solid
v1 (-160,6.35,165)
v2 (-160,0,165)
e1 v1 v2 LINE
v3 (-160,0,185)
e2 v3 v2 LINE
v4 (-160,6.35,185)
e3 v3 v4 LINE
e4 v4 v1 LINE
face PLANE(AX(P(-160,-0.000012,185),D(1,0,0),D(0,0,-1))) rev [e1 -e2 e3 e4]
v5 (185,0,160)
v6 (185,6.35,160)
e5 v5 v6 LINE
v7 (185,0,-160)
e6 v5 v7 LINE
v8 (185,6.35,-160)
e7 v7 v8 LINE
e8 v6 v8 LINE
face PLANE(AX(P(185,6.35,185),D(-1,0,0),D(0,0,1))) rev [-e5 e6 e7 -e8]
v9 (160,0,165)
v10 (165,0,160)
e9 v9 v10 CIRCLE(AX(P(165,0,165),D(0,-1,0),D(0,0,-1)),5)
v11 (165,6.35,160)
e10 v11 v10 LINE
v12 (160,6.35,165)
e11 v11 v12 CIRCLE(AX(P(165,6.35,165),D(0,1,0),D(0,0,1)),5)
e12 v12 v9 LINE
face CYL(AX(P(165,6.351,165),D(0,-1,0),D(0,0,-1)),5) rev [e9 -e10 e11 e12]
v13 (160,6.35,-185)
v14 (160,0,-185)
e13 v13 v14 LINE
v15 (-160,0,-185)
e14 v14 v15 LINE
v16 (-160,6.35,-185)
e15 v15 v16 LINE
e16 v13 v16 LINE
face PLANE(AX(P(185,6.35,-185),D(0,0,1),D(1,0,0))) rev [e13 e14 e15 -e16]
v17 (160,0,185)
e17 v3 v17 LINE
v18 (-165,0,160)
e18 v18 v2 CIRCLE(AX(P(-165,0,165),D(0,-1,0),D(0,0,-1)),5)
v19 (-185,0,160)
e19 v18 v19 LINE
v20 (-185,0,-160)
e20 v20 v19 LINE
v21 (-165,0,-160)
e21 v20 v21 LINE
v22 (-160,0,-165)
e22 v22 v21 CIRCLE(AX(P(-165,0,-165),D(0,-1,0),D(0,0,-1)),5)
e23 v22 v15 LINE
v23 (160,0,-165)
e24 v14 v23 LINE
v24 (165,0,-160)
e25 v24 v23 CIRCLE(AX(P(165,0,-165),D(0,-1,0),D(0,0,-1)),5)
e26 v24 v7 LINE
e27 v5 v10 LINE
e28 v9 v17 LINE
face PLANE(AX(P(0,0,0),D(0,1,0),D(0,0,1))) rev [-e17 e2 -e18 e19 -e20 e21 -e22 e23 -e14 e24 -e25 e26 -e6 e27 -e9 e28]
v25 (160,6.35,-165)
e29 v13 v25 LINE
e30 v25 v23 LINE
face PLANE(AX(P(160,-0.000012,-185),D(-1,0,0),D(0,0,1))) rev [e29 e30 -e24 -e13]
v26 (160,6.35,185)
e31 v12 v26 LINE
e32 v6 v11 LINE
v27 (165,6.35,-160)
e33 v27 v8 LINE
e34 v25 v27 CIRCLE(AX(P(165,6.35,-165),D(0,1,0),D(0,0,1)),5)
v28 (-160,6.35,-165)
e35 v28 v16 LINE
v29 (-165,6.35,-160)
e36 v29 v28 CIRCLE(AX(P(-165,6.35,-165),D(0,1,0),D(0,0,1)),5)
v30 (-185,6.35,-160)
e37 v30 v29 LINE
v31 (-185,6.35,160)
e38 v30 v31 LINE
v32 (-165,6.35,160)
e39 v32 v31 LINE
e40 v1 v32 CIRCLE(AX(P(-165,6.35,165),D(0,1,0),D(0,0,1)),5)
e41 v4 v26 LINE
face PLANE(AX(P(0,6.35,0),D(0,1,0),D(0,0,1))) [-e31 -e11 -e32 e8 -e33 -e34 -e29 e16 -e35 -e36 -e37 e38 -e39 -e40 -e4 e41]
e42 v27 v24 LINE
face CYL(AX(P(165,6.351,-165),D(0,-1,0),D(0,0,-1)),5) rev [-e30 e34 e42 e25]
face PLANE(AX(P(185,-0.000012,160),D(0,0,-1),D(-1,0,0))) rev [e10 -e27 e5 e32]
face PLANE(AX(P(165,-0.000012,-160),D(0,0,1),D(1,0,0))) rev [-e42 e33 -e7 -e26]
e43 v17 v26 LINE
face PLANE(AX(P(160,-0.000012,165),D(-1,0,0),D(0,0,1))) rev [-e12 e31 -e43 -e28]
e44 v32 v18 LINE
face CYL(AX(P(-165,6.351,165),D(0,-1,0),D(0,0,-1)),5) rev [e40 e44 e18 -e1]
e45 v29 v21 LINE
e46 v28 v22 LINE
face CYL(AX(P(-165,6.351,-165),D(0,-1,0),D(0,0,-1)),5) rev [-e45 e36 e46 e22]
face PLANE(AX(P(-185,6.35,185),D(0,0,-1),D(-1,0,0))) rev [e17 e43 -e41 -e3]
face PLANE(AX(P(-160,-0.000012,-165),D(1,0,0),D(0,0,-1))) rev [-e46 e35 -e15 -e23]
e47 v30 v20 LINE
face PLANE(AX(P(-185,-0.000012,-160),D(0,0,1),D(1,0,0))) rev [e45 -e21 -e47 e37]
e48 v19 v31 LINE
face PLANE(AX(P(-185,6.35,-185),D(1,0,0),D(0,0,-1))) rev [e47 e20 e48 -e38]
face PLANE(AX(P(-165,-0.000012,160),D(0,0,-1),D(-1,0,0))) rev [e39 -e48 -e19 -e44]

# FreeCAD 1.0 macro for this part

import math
import FreeCAD as App
import Part
import Sketcher

V = App.Vector
Q = App.Units.Quantity

doc = App.newDocument("Part")
body = doc.addObject("PartDesign::Body", "Body")

# Sketch on XZ plane
sketch1 = body.newObject("Sketcher::SketchObject", "Sketch")
sketch1.AttachmentSupport = (doc.getObject("XZ_Plane"), [""])
sketch1.MapMode = "FlatFace"
sketch1.addGeometry(Part.LineSegment(V(-185, -185, 0), V(-185, 185, 0)), False)
sketch1.addGeometry(Part.LineSegment(V(-185, 185, 0), V(185, 185, 0)), False)
sketch1.addGeometry(Part.LineSegment(V(185, 185, 0), V(185, -185, 0)), False)
sketch1.addGeometry(Part.LineSegment(V(185, -185, 0), V(-185, -185, 0)), False)
sketch1.addConstraint(Sketcher.Constraint("Coincident", 0, 2, 1, 1))
sketch1.addConstraint(Sketcher.Constraint("Coincident", 1, 2, 2, 1))
sketch1.addConstraint(Sketcher.Constraint("Coincident", 2, 2, 3, 1))
sketch1.addConstraint(Sketcher.Constraint("Coincident", 3, 2, 0, 1))
sketch1.addConstraint(Sketcher.Constraint("Vertical", 0))
sketch1.addConstraint(Sketcher.Constraint("Horizontal", 1))
sketch1.addConstraint(Sketcher.Constraint("Vertical", 2))
sketch1.addConstraint(Sketcher.Constraint("Horizontal", 3))
sketch1.addConstraint(Sketcher.Constraint("Symmetric", 0, 2, 2, 2, -1, 1))
sketch1.addConstraint(Sketcher.Constraint("Equal", 3, 0))
sketch1.addConstraint(Sketcher.Constraint("DistanceX", 1, 1, 1, 2, Q("370 mm")))
pad1 = body.newObject("PartDesign::Pad", "Pad")
pad1.Profile = sketch1
pad1.Length = 6.35
pad1.Reversed = True

# Sketch on XZ plane
sketch2 = body.newObject("Sketcher::SketchObject", "Sketch001")
sketch2.AttachmentSupport = (doc.getObject("XZ_Plane"), [""])
sketch2.MapMode = "FlatFace"
sketch2.addGeometry(Part.LineSegment(V(-185, -185, 0), V(-185, -160, 0)), False)
sketch2.addGeometry(Part.LineSegment(V(-185, -160, 0), V(-165, -160, 0)), False)
sketch2.addGeometry(Part.ArcOfCircle(Part.Circle(V(-165, -165, 0), V(0, 0, 1), 5), math.radians(0), math.radians(90)), False)
sketch2.addGeometry(Part.LineSegment(V(-160, -165, 0), V(-160, -185, 0)), False)
sketch2.addGeometry(Part.LineSegment(V(-160, -185, 0), V(-185, -185, 0)), False)
sketch2.addConstraint(Sketcher.Constraint("Coincident", 0, 2, 1, 1))
sketch2.addConstraint(Sketcher.Constraint("Tangent", 1, 2, 2, 2))
sketch2.addConstraint(Sketcher.Constraint("Tangent", 2, 1, 3, 1))
sketch2.addConstraint(Sketcher.Constraint("Coincident", 3, 2, 4, 1))
sketch2.addConstraint(Sketcher.Constraint("Coincident", 4, 2, 0, 1))
sketch2.addConstraint(Sketcher.Constraint("Vertical", 0))
sketch2.addConstraint(Sketcher.Constraint("Horizontal", 1))
sketch2.addConstraint(Sketcher.Constraint("Vertical", 3))
sketch2.addConstraint(Sketcher.Constraint("Horizontal", 4))
sketch2.addConstraint(Sketcher.Constraint("Equal", 4, 0))
sketch2.addConstraint(Sketcher.Constraint("Radius", 2, Q("5 mm")))
sketch2.addConstraint(Sketcher.Constraint("DistanceX", 1, 1, 1, 2, Q("20 mm")))
sketch2.addConstraint(Sketcher.Constraint("DistanceX", 2, 3, -1, 1, Q("165 mm")))
sketch2.addConstraint(Sketcher.Constraint("DistanceY", 2, 3, -1, 1, Q("165 mm")))
pocket1 = body.newObject("PartDesign::Pocket", "Pocket")
pocket1.Profile = sketch2
pocket1.Type = "UpToFirst"

# Sketch on XZ plane
sketch3 = body.newObject("Sketcher::SketchObject", "Sketch002")
sketch3.AttachmentSupport = (doc.getObject("XZ_Plane"), [""])
sketch3.MapMode = "FlatFace"
sketch3.addGeometry(Part.LineSegment(V(-185, 185, 0), V(-160, 185, 0)), False)
sketch3.addGeometry(Part.LineSegment(V(-160, 185, 0), V(-160, 165, 0)), False)
sketch3.addGeometry(Part.ArcOfCircle(Part.Circle(V(-165, 165, 0), V(0, 0, 1), 5), math.radians(-90), math.radians(0)), False)
sketch3.addGeometry(Part.LineSegment(V(-165, 160, 0), V(-185, 160, 0)), False)
sketch3.addGeometry(Part.LineSegment(V(-185, 160, 0), V(-185, 185, 0)), False)
sketch3.addConstraint(Sketcher.Constraint("Coincident", 0, 2, 1, 1))
sketch3.addConstraint(Sketcher.Constraint("Tangent", 1, 2, 2, 2))
sketch3.addConstraint(Sketcher.Constraint("Tangent", 2, 1, 3, 1))
sketch3.addConstraint(Sketcher.Constraint("Coincident", 3, 2, 4, 1))
sketch3.addConstraint(Sketcher.Constraint("Coincident", 4, 2, 0, 1))
sketch3.addConstraint(Sketcher.Constraint("Horizontal", 0))
sketch3.addConstraint(Sketcher.Constraint("Vertical", 1))
sketch3.addConstraint(Sketcher.Constraint("Horizontal", 3))
sketch3.addConstraint(Sketcher.Constraint("Vertical", 4))
sketch3.addConstraint(Sketcher.Constraint("Equal", 3, 1))
sketch3.addConstraint(Sketcher.Constraint("Radius", 2, Q("5 mm")))
sketch3.addConstraint(Sketcher.Constraint("DistanceX", 0, 1, 0, 2, Q("25 mm")))
sketch3.addConstraint(Sketcher.Constraint("DistanceX", 2, 3, -1, 1, Q("165 mm")))
sketch3.addConstraint(Sketcher.Constraint("DistanceY", -1, 1, 2, 3, Q("165 mm")))
pocket2 = body.newObject("PartDesign::Pocket", "Pocket001")
pocket2.Profile = sketch3
pocket2.Type = "UpToFirst"

# Sketch on XZ plane
sketch4 = body.newObject("Sketcher::SketchObject", "Sketch003")
sketch4.AttachmentSupport = (doc.getObject("XZ_Plane"), [""])
sketch4.MapMode = "FlatFace"
sketch4.addGeometry(Part.LineSegment(V(185, -185, 0), V(160, -185, 0)), False)
sketch4.addGeometry(Part.LineSegment(V(160, -185, 0), V(160, -165, 0)), False)
sketch4.addGeometry(Part.ArcOfCircle(Part.Circle(V(165, -165, 0), V(0, 0, 1), 5), math.radians(90), math.radians(180)), False)
sketch4.addGeometry(Part.LineSegment(V(165, -160, 0), V(185, -160, 0)), False)
sketch4.addGeometry(Part.LineSegment(V(185, -160, 0), V(185, -185, 0)), False)
sketch4.addConstraint(Sketcher.Constraint("Coincident", 0, 2, 1, 1))
sketch4.addConstraint(Sketcher.Constraint("Tangent", 1, 2, 2, 2))
sketch4.addConstraint(Sketcher.Constraint("Tangent", 2, 1, 3, 1))
sketch4.addConstraint(Sketcher.Constraint("Coincident", 3, 2, 4, 1))
sketch4.addConstraint(Sketcher.Constraint("Coincident", 4, 2, 0, 1))
sketch4.addConstraint(Sketcher.Constraint("Horizontal", 0))
sketch4.addConstraint(Sketcher.Constraint("Vertical", 1))
sketch4.addConstraint(Sketcher.Constraint("Horizontal", 3))
sketch4.addConstraint(Sketcher.Constraint("Vertical", 4))
sketch4.addConstraint(Sketcher.Constraint("Equal", 3, 1))
sketch4.addConstraint(Sketcher.Constraint("Radius", 2, Q("5 mm")))
sketch4.addConstraint(Sketcher.Constraint("DistanceX", 0, 2, 0, 1, Q("25 mm")))
sketch4.addConstraint(Sketcher.Constraint("DistanceX", -1, 1, 2, 3, Q("165 mm")))
sketch4.addConstraint(Sketcher.Constraint("DistanceY", 2, 3, -1, 1, Q("165 mm")))
pocket3 = body.newObject("PartDesign::Pocket", "Pocket002")
pocket3.Profile = sketch4
pocket3.Type = "UpToFirst"

# Sketch on XZ plane
sketch5 = body.newObject("Sketcher::SketchObject", "Sketch004")
sketch5.AttachmentSupport = (doc.getObject("XZ_Plane"), [""])
sketch5.MapMode = "FlatFace"
sketch5.addGeometry(Part.LineSegment(V(185, 185, 0), V(185, 160, 0)), False)
sketch5.addGeometry(Part.LineSegment(V(185, 160, 0), V(165, 160, 0)), False)
sketch5.addGeometry(Part.ArcOfCircle(Part.Circle(V(165, 165, 0), V(0, 0, 1), 5), math.radians(180), math.radians(270)), False)
sketch5.addGeometry(Part.LineSegment(V(160, 165, 0), V(160, 185, 0)), False)
sketch5.addGeometry(Part.LineSegment(V(160, 185, 0), V(185, 185, 0)), False)
sketch5.addConstraint(Sketcher.Constraint("Coincident", 0, 2, 1, 1))
sketch5.addConstraint(Sketcher.Constraint("Tangent", 1, 2, 2, 2))
sketch5.addConstraint(Sketcher.Constraint("Tangent", 2, 1, 3, 1))
sketch5.addConstraint(Sketcher.Constraint("Coincident", 3, 2, 4, 1))
sketch5.addConstraint(Sketcher.Constraint("Coincident", 4, 2, 0, 1))
sketch5.addConstraint(Sketcher.Constraint("Vertical", 0))
sketch5.addConstraint(Sketcher.Constraint("Horizontal", 1))
sketch5.addConstraint(Sketcher.Constraint("Vertical", 3))
sketch5.addConstraint(Sketcher.Constraint("Horizontal", 4))
sketch5.addConstraint(Sketcher.Constraint("Equal", 4, 0))
sketch5.addConstraint(Sketcher.Constraint("Radius", 2, Q("5 mm")))
sketch5.addConstraint(Sketcher.Constraint("DistanceX", 1, 2, 1, 1, Q("20 mm")))
sketch5.addConstraint(Sketcher.Constraint("DistanceX", -1, 1, 2, 3, Q("165 mm")))
sketch5.addConstraint(Sketcher.Constraint("DistanceY", -1, 1, 2, 3, Q("165 mm")))
pocket4 = body.newObject("PartDesign::Pocket", "Pocket003")
pocket4.Profile = sketch5
pocket4.Type = "UpToFirst"

# Sketch on XZ plane
sketch6 = body.newObject("Sketcher::SketchObject", "Sketch005")
sketch6.AttachmentSupport = (doc.getObject("XZ_Plane"), [""])
sketch6.MapMode = "FlatFace"
sketch6.addGeometry(Part.LineSegment(V(-185, -185, 0), V(-185, -160, 0)), False)
sketch6.addGeometry(Part.LineSegment(V(-185, -160, 0), V(-165, -160, 0)), False)
sketch6.addGeometry(Part.ArcOfCircle(Part.Circle(V(-165, -165, 0), V(0, 0, 1), 5), math.radians(0), math.radians(90)), False)
sketch6.addGeometry(Part.LineSegment(V(-160, -165, 0), V(-160, -185, 0)), False)
sketch6.addGeometry(Part.LineSegment(V(-160, -185, 0), V(-185, -185, 0)), False)
sketch6.addGeometry(Part.LineSegment(V(-185, 185, 0), V(-160, 185, 0)), False)
sketch6.addGeometry(Part.LineSegment(V(-160, 185, 0), V(-160, 165, 0)), False)
sketch6.addGeometry(Part.ArcOfCircle(Part.Circle(V(-165, 165, 0), V(0, 0, 1), 5), math.radians(-90), math.radians(0)), False)
sketch6.addGeometry(Part.LineSegment(V(-165, 160, 0), V(-185, 160, 0)), False)
sketch6.addGeometry(Part.LineSegment(V(-185, 160, 0), V(-185, 185, 0)), False)
sketch6.addGeometry(Part.LineSegment(V(185, -185, 0), V(160, -185, 0)), False)
sketch6.addGeometry(Part.LineSegment(V(160, -185, 0), V(160, -165, 0)), False)
sketch6.addGeometry(Part.ArcOfCircle(Part.Circle(V(165, -165, 0), V(0, 0, 1), 5), math.radians(90), math.radians(180)), False)
sketch6.addGeometry(Part.LineSegment(V(165, -160, 0), V(185, -160, 0)), False)
sketch6.addGeometry(Part.LineSegment(V(185, -160, 0), V(185, -185, 0)), False)
sketch6.addGeometry(Part.LineSegment(V(185, 185, 0), V(185, 160, 0)), False)
sketch6.addGeometry(Part.LineSegment(V(185, 160, 0), V(165, 160, 0)), False)
sketch6.addGeometry(Part.ArcOfCircle(Part.Circle(V(165, 165, 0), V(0, 0, 1), 5), math.radians(180), math.radians(270)), False)
sketch6.addGeometry(Part.LineSegment(V(160, 165, 0), V(160, 185, 0)), False)
sketch6.addGeometry(Part.LineSegment(V(160, 185, 0), V(185, 185, 0)), False)
sketch6.addConstraint(Sketcher.Constraint("Coincident", 0, 2, 1, 1))
sketch6.addConstraint(Sketcher.Constraint("Tangent", 1, 2, 2, 2))
sketch6.addConstraint(Sketcher.Constraint("Tangent", 2, 1, 3, 1))
sketch6.addConstraint(Sketcher.Constraint("Coincident", 3, 2, 4, 1))
sketch6.addConstraint(Sketcher.Constraint("Coincident", 4, 2, 0, 1))
sketch6.addConstraint(Sketcher.Constraint("Coincident", 5, 2, 6, 1))
sketch6.addConstraint(Sketcher.Constraint("Tangent", 6, 2, 7, 2))
sketch6.addConstraint(Sketcher.Constraint("Tangent", 7, 1, 8, 1))
sketch6.addConstraint(Sketcher.Constraint("Coincident", 8, 2, 9, 1))
sketch6.addConstraint(Sketcher.Constraint("Coincident", 9, 2, 5, 1))
sketch6.addConstraint(Sketcher.Constraint("Coincident", 10, 2, 11, 1))
sketch6.addConstraint(Sketcher.Constraint("Tangent", 11, 2, 12, 2))
sketch6.addConstraint(Sketcher.Constraint("Tangent", 12, 1, 13, 1))
sketch6.addConstraint(Sketcher.Constraint("Coincident", 13, 2, 14, 1))
sketch6.addConstraint(Sketcher.Constraint("Coincident", 14, 2, 10, 1))
sketch6.addConstraint(Sketcher.Constraint("Coincident", 15, 2, 16, 1))
sketch6.addConstraint(Sketcher.Constraint("Tangent", 16, 2, 17, 2))
sketch6.addConstraint(Sketcher.Constraint("Tangent", 17, 1, 18, 1))
sketch6.addConstraint(Sketcher.Constraint("Coincident", 18, 2, 19, 1))
sketch6.addConstraint(Sketcher.Constraint("Coincident", 19, 2, 15, 1))
sketch6.addConstraint(Sketcher.Constraint("Vertical", 0))
sketch6.addConstraint(Sketcher.Constraint("Horizontal", 1))
sketch6.addConstraint(Sketcher.Constraint("Vertical", 3))
sketch6.addConstraint(Sketcher.Constraint("Horizontal", 4))
sketch6.addConstraint(Sketcher.Constraint("Horizontal", 5))
sketch6.addConstraint(Sketcher.Constraint("Vertical", 6))
sketch6.addConstraint(Sketcher.Constraint("Horizontal", 8))
sketch6.addConstraint(Sketcher.Constraint("Vertical", 9))
sketch6.addConstraint(Sketcher.Constraint("Horizontal", 10))
sketch6.addConstraint(Sketcher.Constraint("Vertical", 11))
sketch6.addConstraint(Sketcher.Constraint("Horizontal", 13))
sketch6.addConstraint(Sketcher.Constraint("Vertical", 14))
sketch6.addConstraint(Sketcher.Constraint("Vertical", 15))
sketch6.addConstraint(Sketcher.Constraint("Horizontal", 16))
sketch6.addConstraint(Sketcher.Constraint("Vertical", 18))
sketch6.addConstraint(Sketcher.Constraint("Horizontal", 19))
sketch6.addConstraint(Sketcher.Constraint("Equal", 2, 7))
sketch6.addConstraint(Sketcher.Constraint("Equal", 7, 12))
sketch6.addConstraint(Sketcher.Constraint("Equal", 12, 17))
sketch6.addConstraint(Sketcher.Constraint("Symmetric", 7, 3, 12, 3, -1, 1))
sketch6.addConstraint(Sketcher.Constraint("Symmetric", 2, 3, 17, 3, -1, 1))
sketch6.addConstraint(Sketcher.Constraint("Symmetric", 9, 2, 14, 2, -1, 1))
sketch6.addConstraint(Sketcher.Constraint("Symmetric", 4, 2, 19, 2, -1, 1))
sketch6.addConstraint(Sketcher.Constraint("Symmetric", 2, 3, 12, 3, -2))
sketch6.addConstraint(Sketcher.Constraint("Symmetric", 4, 2, 14, 2, -2))
sketch6.addConstraint(Sketcher.Constraint("Equal", 19, 0))
sketch6.addConstraint(Sketcher.Constraint("Radius", 2, Q("5 mm")))
sketch6.addConstraint(Sketcher.Constraint("DistanceX", 1, 1, 1, 2, Q("20 mm")))
sketch6.addConstraint(Sketcher.Constraint("DistanceX", 2, 3, -1, 1, Q("165 mm")))
sketch6.addConstraint(Sketcher.Constraint("DistanceY", 2, 3, -1, 1, Q("165 mm")))
pocket5 = body.newObject("PartDesign::Pocket", "Pocket004")
pocket5.Profile = sketch6
pocket5.Length = 262.706558
pocket5.Reversed = True

doc.recompute()
